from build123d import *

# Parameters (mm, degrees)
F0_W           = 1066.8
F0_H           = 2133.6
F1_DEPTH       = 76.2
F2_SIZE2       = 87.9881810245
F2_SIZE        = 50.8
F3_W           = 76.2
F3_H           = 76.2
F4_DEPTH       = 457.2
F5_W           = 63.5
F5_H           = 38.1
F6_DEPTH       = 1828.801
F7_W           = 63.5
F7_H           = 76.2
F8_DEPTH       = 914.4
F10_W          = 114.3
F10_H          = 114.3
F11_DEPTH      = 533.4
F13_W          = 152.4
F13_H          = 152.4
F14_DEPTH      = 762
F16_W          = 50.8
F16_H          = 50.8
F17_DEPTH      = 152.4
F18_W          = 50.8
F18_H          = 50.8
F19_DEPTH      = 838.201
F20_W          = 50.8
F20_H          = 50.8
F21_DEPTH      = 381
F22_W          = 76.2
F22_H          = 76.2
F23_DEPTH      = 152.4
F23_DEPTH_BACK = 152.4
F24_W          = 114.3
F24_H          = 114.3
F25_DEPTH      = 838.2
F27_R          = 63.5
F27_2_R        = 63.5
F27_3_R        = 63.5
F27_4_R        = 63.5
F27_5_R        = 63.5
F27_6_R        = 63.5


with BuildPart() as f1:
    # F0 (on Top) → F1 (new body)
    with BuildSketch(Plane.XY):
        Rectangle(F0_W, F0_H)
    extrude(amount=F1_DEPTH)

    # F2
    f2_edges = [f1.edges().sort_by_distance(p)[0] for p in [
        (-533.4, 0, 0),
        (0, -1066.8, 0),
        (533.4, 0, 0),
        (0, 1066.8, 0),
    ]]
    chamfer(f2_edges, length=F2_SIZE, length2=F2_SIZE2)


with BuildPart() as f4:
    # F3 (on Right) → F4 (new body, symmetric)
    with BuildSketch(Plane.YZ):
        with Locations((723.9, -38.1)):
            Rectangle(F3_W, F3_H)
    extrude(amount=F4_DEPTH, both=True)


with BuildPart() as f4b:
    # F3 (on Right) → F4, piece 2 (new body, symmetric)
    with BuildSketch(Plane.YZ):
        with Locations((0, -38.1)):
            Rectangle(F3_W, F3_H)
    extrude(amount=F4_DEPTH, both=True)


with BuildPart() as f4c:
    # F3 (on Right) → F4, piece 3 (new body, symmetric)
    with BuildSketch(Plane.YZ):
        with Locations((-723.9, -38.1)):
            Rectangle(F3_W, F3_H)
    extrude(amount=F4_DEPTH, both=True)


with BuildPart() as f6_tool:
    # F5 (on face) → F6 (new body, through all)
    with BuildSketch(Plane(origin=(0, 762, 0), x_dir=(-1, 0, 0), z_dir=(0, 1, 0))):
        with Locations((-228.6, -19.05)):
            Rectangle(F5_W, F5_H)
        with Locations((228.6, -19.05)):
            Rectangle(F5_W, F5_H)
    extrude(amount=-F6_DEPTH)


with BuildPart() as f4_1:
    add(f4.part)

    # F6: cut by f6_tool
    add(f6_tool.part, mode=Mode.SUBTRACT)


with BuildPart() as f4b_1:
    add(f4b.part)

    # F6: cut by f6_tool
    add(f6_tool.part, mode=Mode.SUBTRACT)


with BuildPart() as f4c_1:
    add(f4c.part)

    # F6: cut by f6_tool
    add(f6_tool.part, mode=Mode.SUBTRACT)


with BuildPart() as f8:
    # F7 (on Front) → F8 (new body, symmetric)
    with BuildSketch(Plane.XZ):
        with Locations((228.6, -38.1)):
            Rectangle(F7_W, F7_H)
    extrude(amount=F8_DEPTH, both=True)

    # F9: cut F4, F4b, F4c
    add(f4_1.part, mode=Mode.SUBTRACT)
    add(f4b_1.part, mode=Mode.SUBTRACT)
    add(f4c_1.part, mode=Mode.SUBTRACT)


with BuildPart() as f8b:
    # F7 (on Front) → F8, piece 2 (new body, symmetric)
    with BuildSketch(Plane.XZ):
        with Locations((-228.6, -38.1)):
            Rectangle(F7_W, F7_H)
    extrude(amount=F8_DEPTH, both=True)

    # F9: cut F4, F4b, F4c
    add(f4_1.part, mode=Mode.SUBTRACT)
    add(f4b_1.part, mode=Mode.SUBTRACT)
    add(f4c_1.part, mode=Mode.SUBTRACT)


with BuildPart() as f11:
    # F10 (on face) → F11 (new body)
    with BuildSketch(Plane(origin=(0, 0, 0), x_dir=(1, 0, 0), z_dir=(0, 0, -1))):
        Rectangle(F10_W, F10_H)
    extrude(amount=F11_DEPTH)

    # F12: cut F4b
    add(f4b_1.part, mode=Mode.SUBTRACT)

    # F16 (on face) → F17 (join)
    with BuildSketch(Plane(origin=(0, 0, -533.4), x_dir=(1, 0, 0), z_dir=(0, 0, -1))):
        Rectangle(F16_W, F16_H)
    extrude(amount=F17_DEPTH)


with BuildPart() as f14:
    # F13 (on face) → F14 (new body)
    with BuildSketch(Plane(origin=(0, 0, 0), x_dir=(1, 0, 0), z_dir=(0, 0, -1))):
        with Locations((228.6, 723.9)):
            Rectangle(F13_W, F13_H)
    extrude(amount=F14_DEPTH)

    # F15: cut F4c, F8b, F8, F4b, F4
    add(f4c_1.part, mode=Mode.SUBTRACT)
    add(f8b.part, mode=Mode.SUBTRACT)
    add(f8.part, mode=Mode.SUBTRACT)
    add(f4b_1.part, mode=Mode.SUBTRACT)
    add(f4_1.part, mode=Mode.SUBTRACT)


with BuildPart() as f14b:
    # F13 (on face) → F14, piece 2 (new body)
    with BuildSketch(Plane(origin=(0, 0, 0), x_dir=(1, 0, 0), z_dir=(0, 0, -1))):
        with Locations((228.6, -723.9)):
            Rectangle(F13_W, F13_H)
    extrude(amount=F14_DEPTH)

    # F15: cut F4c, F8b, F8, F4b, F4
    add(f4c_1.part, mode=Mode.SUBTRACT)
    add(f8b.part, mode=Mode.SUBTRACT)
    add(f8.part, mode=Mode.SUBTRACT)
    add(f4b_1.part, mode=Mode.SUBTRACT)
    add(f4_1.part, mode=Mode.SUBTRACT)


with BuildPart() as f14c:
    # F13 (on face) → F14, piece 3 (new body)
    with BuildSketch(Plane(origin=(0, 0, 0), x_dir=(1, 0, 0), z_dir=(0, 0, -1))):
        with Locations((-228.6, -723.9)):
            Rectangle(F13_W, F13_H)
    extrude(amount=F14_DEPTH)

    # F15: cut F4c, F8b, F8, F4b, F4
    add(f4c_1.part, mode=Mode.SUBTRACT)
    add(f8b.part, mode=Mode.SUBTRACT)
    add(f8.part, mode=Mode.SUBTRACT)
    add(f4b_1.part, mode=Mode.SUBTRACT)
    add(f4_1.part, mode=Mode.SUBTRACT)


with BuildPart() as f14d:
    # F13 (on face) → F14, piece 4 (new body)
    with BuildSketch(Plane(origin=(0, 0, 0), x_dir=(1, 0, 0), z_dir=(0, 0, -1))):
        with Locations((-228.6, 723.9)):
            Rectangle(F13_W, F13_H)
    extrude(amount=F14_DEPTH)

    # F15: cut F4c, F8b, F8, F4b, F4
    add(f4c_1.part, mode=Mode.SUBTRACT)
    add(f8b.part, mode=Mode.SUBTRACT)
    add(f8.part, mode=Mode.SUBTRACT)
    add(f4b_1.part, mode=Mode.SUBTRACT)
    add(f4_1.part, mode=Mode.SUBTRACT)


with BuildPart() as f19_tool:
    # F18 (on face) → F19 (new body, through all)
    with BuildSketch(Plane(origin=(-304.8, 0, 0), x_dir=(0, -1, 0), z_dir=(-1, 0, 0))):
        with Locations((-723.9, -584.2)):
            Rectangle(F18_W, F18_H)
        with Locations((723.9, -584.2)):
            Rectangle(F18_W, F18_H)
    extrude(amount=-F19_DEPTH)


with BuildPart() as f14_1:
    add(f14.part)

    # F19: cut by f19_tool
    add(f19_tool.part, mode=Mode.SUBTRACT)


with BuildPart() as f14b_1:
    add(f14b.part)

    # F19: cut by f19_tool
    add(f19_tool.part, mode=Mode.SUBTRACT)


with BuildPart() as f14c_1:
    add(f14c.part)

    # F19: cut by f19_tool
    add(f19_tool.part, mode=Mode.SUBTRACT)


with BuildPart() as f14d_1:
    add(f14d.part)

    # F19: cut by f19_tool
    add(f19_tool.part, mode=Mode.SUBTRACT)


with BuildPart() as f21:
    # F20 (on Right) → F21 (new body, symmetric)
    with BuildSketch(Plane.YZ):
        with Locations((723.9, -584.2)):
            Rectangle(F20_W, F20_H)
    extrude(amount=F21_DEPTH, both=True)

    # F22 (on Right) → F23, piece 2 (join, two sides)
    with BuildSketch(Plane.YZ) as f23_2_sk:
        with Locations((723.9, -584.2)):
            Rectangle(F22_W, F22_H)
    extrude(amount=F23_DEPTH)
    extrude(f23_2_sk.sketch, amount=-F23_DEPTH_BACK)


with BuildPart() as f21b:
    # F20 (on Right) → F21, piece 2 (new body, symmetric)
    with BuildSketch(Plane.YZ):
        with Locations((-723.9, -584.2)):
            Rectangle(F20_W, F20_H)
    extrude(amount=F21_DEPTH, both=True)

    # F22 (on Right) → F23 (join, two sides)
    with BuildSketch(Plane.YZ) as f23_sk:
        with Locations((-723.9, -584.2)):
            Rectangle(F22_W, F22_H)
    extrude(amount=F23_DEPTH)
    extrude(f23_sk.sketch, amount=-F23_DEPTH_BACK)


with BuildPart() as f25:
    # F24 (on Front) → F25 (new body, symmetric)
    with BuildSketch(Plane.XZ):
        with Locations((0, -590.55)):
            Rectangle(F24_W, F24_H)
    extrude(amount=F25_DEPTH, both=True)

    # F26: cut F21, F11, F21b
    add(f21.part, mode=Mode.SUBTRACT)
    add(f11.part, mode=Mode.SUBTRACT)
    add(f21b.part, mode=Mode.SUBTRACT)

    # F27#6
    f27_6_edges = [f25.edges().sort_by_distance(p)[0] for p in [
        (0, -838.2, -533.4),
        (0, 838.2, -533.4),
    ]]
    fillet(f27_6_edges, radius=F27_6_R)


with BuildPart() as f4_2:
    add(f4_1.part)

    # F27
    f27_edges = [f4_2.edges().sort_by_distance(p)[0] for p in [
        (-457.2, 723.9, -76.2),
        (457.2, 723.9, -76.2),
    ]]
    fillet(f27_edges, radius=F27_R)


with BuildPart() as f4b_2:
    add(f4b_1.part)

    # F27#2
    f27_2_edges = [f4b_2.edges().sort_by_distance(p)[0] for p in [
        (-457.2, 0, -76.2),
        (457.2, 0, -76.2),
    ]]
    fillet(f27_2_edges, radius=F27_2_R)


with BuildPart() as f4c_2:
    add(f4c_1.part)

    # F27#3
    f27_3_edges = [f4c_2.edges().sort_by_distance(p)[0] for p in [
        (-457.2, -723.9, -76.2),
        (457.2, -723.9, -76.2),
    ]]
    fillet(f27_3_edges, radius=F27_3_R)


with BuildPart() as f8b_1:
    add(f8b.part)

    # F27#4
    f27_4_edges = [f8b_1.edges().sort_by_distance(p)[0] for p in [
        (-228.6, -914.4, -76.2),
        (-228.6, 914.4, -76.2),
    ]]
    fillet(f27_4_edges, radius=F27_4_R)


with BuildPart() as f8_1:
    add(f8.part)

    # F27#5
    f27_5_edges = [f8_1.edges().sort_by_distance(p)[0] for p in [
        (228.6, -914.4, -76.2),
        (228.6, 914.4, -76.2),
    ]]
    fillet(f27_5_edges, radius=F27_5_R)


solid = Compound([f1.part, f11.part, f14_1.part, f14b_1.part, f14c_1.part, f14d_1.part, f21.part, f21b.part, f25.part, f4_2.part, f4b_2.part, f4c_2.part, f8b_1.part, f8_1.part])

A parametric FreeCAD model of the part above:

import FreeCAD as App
import Part
import Sketcher
Q = App.Units.Quantity


def edges_at(feature, points):
    """Names of the edges that pass closest to the given points."""
    edges = feature.Shape.Edges
    near = lambda p: min(range(len(edges)), key=lambda i: edges[i].distToShape(Part.Vertex(*p))[0])
    return sorted({f"Edge{near(p) + 1}" for p in points})


def add_polygon(sketch, points):
    """Adds a closed chain of lines whose ends are joined by coincident constraints."""
    first, n = sketch.GeometryCount, len(points)
    for a, b in zip(points, points[1:] + points[:1]):
        sketch.addGeometry(Part.LineSegment(App.Vector(*a, 0), App.Vector(*b, 0)), False)
    for i in range(n):
        sketch.addConstraint(Sketcher.Constraint("Coincident", first + i, 2, first + (i + 1) % n, 1))

doc = App.newDocument("Part")
body = doc.addObject("PartDesign::Body", "Body")

# Sketch on XY plane
sketch1 = body.newObject("Sketcher::SketchObject", "Sketch")
sketch1.AttachmentSupport = (doc.getObject("XY_Plane"), [""])
sketch1.MapMode = "FlatFace"
add_polygon(sketch1, [(-533, 1067), (-533, -1067), (533, -1067), (533, 1067)])  # lines 0-3
sketch1.addConstraint([
    Sketcher.Constraint("Vertical", 0),
    Sketcher.Constraint("Horizontal", 1),
    Sketcher.Constraint("Vertical", 2),
    Sketcher.Constraint("Horizontal", 3),
    Sketcher.Constraint("Symmetric", 0, 2, 2, 2, -1, 1),
    Sketcher.Constraint("DistanceX", 1, 1, 1, 2, Q("42 in")),
    Sketcher.Constraint("DistanceY", 0, 2, 0, 1, Q("84 in")),
])
pad1 = body.newObject("PartDesign::Pad", "Pad")
pad1.Profile = sketch1
pad1.Length = Q("3 in")
doc.recompute()

chamfer = body.newObject("PartDesign::Chamfer", "Chamfer")
chamfer.Base = (pad1, edges_at(pad1, [
    (-533.4, 0, 0),
    (0, -1066.8, 0),
    (533.4, 0, 0),
    (0, 1066.8, 0),
]))
chamfer.ChamferType = "Two distances"
chamfer.Size = Q("2 in")
chamfer.Size2 = 87.988181
body2 = doc.addObject("PartDesign::Body", "Body001")

# Sketch on YZ plane
sketch2 = body2.newObject("Sketcher::SketchObject", "Sketch001")
sketch2.AttachmentSupport = (doc.getObject("YZ_Plane001"), [""])
sketch2.MapMode = "FlatFace"
add_polygon(sketch2, [(686, 0), (686, -76), (762, -76), (762, 0)])  # lines 0-3
sketch2.addConstraint([
    Sketcher.Constraint("Vertical", 0),
    Sketcher.Constraint("Horizontal", 1),
    Sketcher.Constraint("Vertical", 2),
    Sketcher.Constraint("Horizontal", 3),
    Sketcher.Constraint("PointOnObject", 2, 2, -1),
    Sketcher.Constraint("Equal", 3, 0),
    Sketcher.Constraint("DistanceX", 1, 1, 1, 2, Q("3 in")),
    Sketcher.Constraint("DistanceX", -1, 1, 0, 2, Q("27 in")),
])
pad2 = body2.newObject("PartDesign::Pad", "Pad001")
pad2.Profile = sketch2
pad2.Length = Q("36 in")
pad2.Midplane = True
body3 = doc.addObject("PartDesign::Body", "Body002")

# Sketch on YZ plane
sketch3 = body3.newObject("Sketcher::SketchObject", "Sketch002")
sketch3.AttachmentSupport = (doc.getObject("YZ_Plane002"), [""])
sketch3.MapMode = "FlatFace"
add_polygon(sketch3, [(-38, 0), (-38, -76), (38, -76), (38, 0)])  # lines 0-3
sketch3.addConstraint([
    Sketcher.Constraint("Vertical", 0),
    Sketcher.Constraint("Horizontal", 1),
    Sketcher.Constraint("Vertical", 2),
    Sketcher.Constraint("Horizontal", 3),
    Sketcher.Constraint("Symmetric", 2, 2, 3, 2, -1, 1),
    Sketcher.Constraint("Equal", 3, 0),
    Sketcher.Constraint("DistanceX", 1, 1, 1, 2, Q("3 in")),
])
pad3 = body3.newObject("PartDesign::Pad", "Pad002")
pad3.Profile = sketch3
pad3.Length = Q("36 in")
pad3.Midplane = True
body4 = doc.addObject("PartDesign::Body", "Body003")

# Sketch on YZ plane
sketch4 = body4.newObject("Sketcher::SketchObject", "Sketch003")
sketch4.AttachmentSupport = (doc.getObject("YZ_Plane003"), [""])
sketch4.MapMode = "FlatFace"
add_polygon(sketch4, [(-762, 0), (-762, -76), (-686, -76), (-686, 0)])  # lines 0-3
sketch4.addConstraint([
    Sketcher.Constraint("Vertical", 0),
    Sketcher.Constraint("Horizontal", 1),
    Sketcher.Constraint("Vertical", 2),
    Sketcher.Constraint("Horizontal", 3),
    Sketcher.Constraint("PointOnObject", 2, 2, -1),
    Sketcher.Constraint("Equal", 3, 0),
    Sketcher.Constraint("DistanceX", 1, 1, 1, 2, Q("3 in")),
    Sketcher.Constraint("DistanceX", 0, 2, -1, 1, Q("30 in")),
])
pad4 = body4.newObject("PartDesign::Pad", "Pad003")
pad4.Profile = sketch4
pad4.Length = Q("36 in")
pad4.Midplane = True
body5 = doc.addObject("PartDesign::Body", "Body004")
body5.AllowCompound = True

# Sketch on XZ plane
sketch5 = body5.newObject("Sketcher::SketchObject", "Sketch004")
sketch5.AttachmentSupport = (doc.getObject("XZ_Plane004"), [""])
sketch5.MapMode = "FlatFace"
sketch5.AttachmentOffset = App.Placement(App.Vector(0, 0, -30 * 25.4), App.Rotation())
add_polygon(sketch5, [(260, 0), (260, -38), (197, -38), (197, 0)])  # lines 0-3
add_polygon(sketch5, [(-197, 0), (-197, -38), (-260, -38), (-260, 0)])  # lines 4-7
sketch5.addConstraint([
    Sketcher.Constraint("Vertical", 0),
    Sketcher.Constraint("Horizontal", 1),
    Sketcher.Constraint("Vertical", 2),
    Sketcher.Constraint("Horizontal", 3),
    Sketcher.Constraint("Vertical", 4),
    Sketcher.Constraint("Horizontal", 5),
    Sketcher.Constraint("Vertical", 6),
    Sketcher.Constraint("Horizontal", 7),
    Sketcher.Constraint("Symmetric", 3, 2, 6, 2, -1, 1),
    Sketcher.Constraint("Symmetric", 1, 2, 4, 2, -2),
    Sketcher.Constraint("PointOnObject", 2, 2, -1),
    Sketcher.Constraint("DistanceX", 1, 2, 1, 1, Q("2.5 in")),
    Sketcher.Constraint("DistanceY", 0, 2, 0, 1, Q("1.5 in")),
    Sketcher.Constraint("DistanceX", 4, 2, 0, 2, Q("18 in")),
])
pad5 = body5.newObject("PartDesign::Pad", "Pad004")
pad5.Profile = sketch5
pad5.Length = 1828.801
doc.recompute()

body6 = doc.addObject("PartDesign::Body", "Body005")
body6.BaseFeature = body5
boolean = body2.newObject("PartDesign::Boolean", "Boolean")
boolean.Type = "Cut"
boolean.addObjects([body6])
doc.recompute()

body7 = doc.addObject("PartDesign::Body", "Body006")
body7.BaseFeature = body5
boolean2 = body3.newObject("PartDesign::Boolean", "Boolean001")
boolean2.Type = "Cut"
boolean2.addObjects([body7])
doc.recompute()

boolean3 = body4.newObject("PartDesign::Boolean", "Boolean002")
boolean3.Type = "Cut"
boolean3.addObjects([body5])
body8 = doc.addObject("PartDesign::Body", "Body007")

# Sketch on XZ plane
sketch6 = body8.newObject("Sketcher::SketchObject", "Sketch005")
sketch6.AttachmentSupport = (doc.getObject("XZ_Plane007"), [""])
sketch6.MapMode = "FlatFace"
add_polygon(sketch6, [(197, 0), (197, -76), (260, -76), (260, 0)])  # lines 0-3
sketch6.addConstraint([
    Sketcher.Constraint("Vertical", 0),
    Sketcher.Constraint("Horizontal", 1),
    Sketcher.Constraint("Vertical", 2),
    Sketcher.Constraint("Horizontal", 3),
    Sketcher.Constraint("PointOnObject", 2, 2, -1),
    Sketcher.Constraint("DistanceY", 0, 2, 0, 1, Q("3 in")),
    Sketcher.Constraint("DistanceX", 1, 1, 1, 2, Q("2.5 in")),
    Sketcher.Constraint("DistanceX", -1, 1, 0, 2, Q("7.75 in")),
])
pad6 = body8.newObject("PartDesign::Pad", "Pad005")
pad6.Profile = sketch6
pad6.Length = Q("72 in")
pad6.Midplane = True
doc.recompute()

body9 = doc.addObject("PartDesign::Body", "Body008")
body9.BaseFeature = body2
boolean4 = body8.newObject("PartDesign::Boolean", "Boolean003")
boolean4.Type = "Cut"
boolean4.addObjects([body9])
doc.recompute()

body10 = doc.addObject("PartDesign::Body", "Body009")
body10.BaseFeature = body3
boolean5 = body8.newObject("PartDesign::Boolean", "Boolean004")
boolean5.Type = "Cut"
boolean5.addObjects([body10])
doc.recompute()

body11 = doc.addObject("PartDesign::Body", "Body010")
body11.BaseFeature = body4
boolean6 = body8.newObject("PartDesign::Boolean", "Boolean005")
boolean6.Type = "Cut"
boolean6.addObjects([body11])
doc.recompute()
body12 = doc.addObject("PartDesign::Body", "Body011")

# Sketch on XZ plane
sketch7 = body12.newObject("Sketcher::SketchObject", "Sketch006")
sketch7.AttachmentSupport = (doc.getObject("XZ_Plane011"), [""])
sketch7.MapMode = "FlatFace"
add_polygon(sketch7, [(-260, 0), (-260, -76), (-197, -76), (-197, 0)])  # lines 0-3
sketch7.addConstraint([
    Sketcher.Constraint("Vertical", 0),
    Sketcher.Constraint("Horizontal", 1),
    Sketcher.Constraint("Vertical", 2),
    Sketcher.Constraint("Horizontal", 3),
    Sketcher.Constraint("PointOnObject", 2, 2, -1),
    Sketcher.Constraint("DistanceY", 0, 2, 0, 1, Q("3 in")),
    Sketcher.Constraint("DistanceX", 1, 1, 1, 2, Q("2.5 in")),
    Sketcher.Constraint("DistanceX", 0, 2, -1, 1, Q("10.25 in")),
])
pad7 = body12.newObject("PartDesign::Pad", "Pad006")
pad7.Profile = sketch7
pad7.Length = Q("72 in")
pad7.Midplane = True
doc.recompute()

body13 = doc.addObject("PartDesign::Body", "Body012")
body13.BaseFeature = body2
boolean7 = body12.newObject("PartDesign::Boolean", "Boolean006")
boolean7.Type = "Cut"
boolean7.addObjects([body13])
doc.recompute()

body14 = doc.addObject("PartDesign::Body", "Body013")
body14.BaseFeature = body3
boolean8 = body12.newObject("PartDesign::Boolean", "Boolean007")
boolean8.Type = "Cut"
boolean8.addObjects([body14])
doc.recompute()

body15 = doc.addObject("PartDesign::Body", "Body014")
body15.BaseFeature = body4
boolean9 = body12.newObject("PartDesign::Boolean", "Boolean008")
boolean9.Type = "Cut"
boolean9.addObjects([body15])
doc.recompute()
body16 = doc.addObject("PartDesign::Body", "Body015")

# Sketch on XY plane
sketch8 = body16.newObject("Sketcher::SketchObject", "Sketch007")
sketch8.AttachmentSupport = (doc.getObject("XY_Plane015"), [""])
sketch8.MapMode = "FlatFace"
add_polygon(sketch8, [(-57, -57), (-57, 57), (57, 57), (57, -57)])  # lines 0-3
sketch8.addConstraint([
    Sketcher.Constraint("Vertical", 0),
    Sketcher.Constraint("Horizontal", 1),
    Sketcher.Constraint("Vertical", 2),
    Sketcher.Constraint("Horizontal", 3),
    Sketcher.Constraint("Symmetric", 0, 2, 2, 2, -1, 1),
    Sketcher.Constraint("Equal", 3, 0),
    Sketcher.Constraint("DistanceX", 1, 1, 1, 2, Q("4.5 in")),
])
pad8 = body16.newObject("PartDesign::Pad", "Pad007")
pad8.Profile = sketch8
pad8.Length = Q("21 in")
pad8.Reversed = True
doc.recompute()

body17 = doc.addObject("PartDesign::Body", "Body016")
body17.BaseFeature = body3
boolean10 = body16.newObject("PartDesign::Boolean", "Boolean009")
boolean10.Type = "Cut"
boolean10.addObjects([body17])
doc.recompute()

# Sketch on XY plane
sketch9 = body16.newObject("Sketcher::SketchObject", "Sketch008")
sketch9.AttachmentSupport = (doc.getObject("XY_Plane015"), [""])
sketch9.MapMode = "FlatFace"
sketch9.AttachmentOffset = App.Placement(App.Vector(0, 0, -21 * 25.4), App.Rotation())
add_polygon(sketch9, [(-25, -25), (-25, 25), (25, 25), (25, -25)])  # lines 0-3
sketch9.addConstraint([
    Sketcher.Constraint("Vertical", 0),
    Sketcher.Constraint("Horizontal", 1),
    Sketcher.Constraint("Vertical", 2),
    Sketcher.Constraint("Horizontal", 3),
    Sketcher.Constraint("Symmetric", 0, 2, 2, 2, -1, 1),
    Sketcher.Constraint("Equal", 3, 0),
    Sketcher.Constraint("DistanceX", 1, 1, 1, 2, Q("2 in")),
])
pad9 = body16.newObject("PartDesign::Pad", "Pad008")
pad9.Profile = sketch9
pad9.Length = Q("6 in")
pad9.Reversed = True
body18 = doc.addObject("PartDesign::Body", "Body017")

# Sketch on XY plane
sketch10 = body18.newObject("Sketcher::SketchObject", "Sketch009")
sketch10.AttachmentSupport = (doc.getObject("XY_Plane017"), [""])
sketch10.MapMode = "FlatFace"
add_polygon(sketch10, [(152, -800), (152, -648), (305, -648), (305, -800)])  # lines 0-3
sketch10.addConstraint([
    Sketcher.Constraint("Vertical", 0),
    Sketcher.Constraint("Horizontal", 1),
    Sketcher.Constraint("Vertical", 2),
    Sketcher.Constraint("Horizontal", 3),
    Sketcher.Constraint("Equal", 3, 0),
    Sketcher.Constraint("DistanceX", 1, 1, 1, 2, Q("6 in")),
    Sketcher.Constraint("DistanceX", -1, 1, 0, 2, Q("6 in")),
    Sketcher.Constraint("DistanceY", 0, 2, -1, 1, Q("25.5 in")),
])
pad10 = body18.newObject("PartDesign::Pad", "Pad009")
pad10.Profile = sketch10
pad10.Length = Q("30 in")
pad10.Reversed = True
doc.recompute()

body19 = doc.addObject("PartDesign::Body", "Body018")
body19.BaseFeature = body4
boolean11 = body18.newObject("PartDesign::Boolean", "Boolean010")
boolean11.Type = "Cut"
boolean11.addObjects([body19])
doc.recompute()

body20 = doc.addObject("PartDesign::Body", "Body019")
body20.BaseFeature = body12
boolean12 = body18.newObject("PartDesign::Boolean", "Boolean011")
boolean12.Type = "Cut"
boolean12.addObjects([body20])
doc.recompute()

body21 = doc.addObject("PartDesign::Body", "Body020")
body21.BaseFeature = body8
boolean13 = body18.newObject("PartDesign::Boolean", "Boolean012")
boolean13.Type = "Cut"
boolean13.addObjects([body21])
doc.recompute()

body22 = doc.addObject("PartDesign::Body", "Body021")
body22.BaseFeature = body3
boolean14 = body18.newObject("PartDesign::Boolean", "Boolean013")
boolean14.Type = "Cut"
boolean14.addObjects([body22])
doc.recompute()

body23 = doc.addObject("PartDesign::Body", "Body022")
body23.BaseFeature = body2
boolean15 = body18.newObject("PartDesign::Boolean", "Boolean014")
boolean15.Type = "Cut"
boolean15.addObjects([body23])
doc.recompute()
body24 = doc.addObject("PartDesign::Body", "Body023")

# Sketch on XY plane
sketch11 = body24.newObject("Sketcher::SketchObject", "Sketch010")
sketch11.AttachmentSupport = (doc.getObject("XY_Plane023"), [""])
sketch11.MapMode = "FlatFace"
add_polygon(sketch11, [(152, 648), (152, 800), (305, 800), (305, 648)])  # lines 0-3
sketch11.addConstraint([
    Sketcher.Constraint("Vertical", 0),
    Sketcher.Constraint("Horizontal", 1),
    Sketcher.Constraint("Vertical", 2),
    Sketcher.Constraint("Horizontal", 3),
    Sketcher.Constraint("Equal", 3, 0),
    Sketcher.Constraint("DistanceX", 1, 1, 1, 2, Q("6 in")),
    Sketcher.Constraint("DistanceX", -1, 1, 0, 2, Q("6 in")),
    Sketcher.Constraint("DistanceY", -1, 1, 0, 2, Q("31.5 in")),
])
pad11 = body24.newObject("PartDesign::Pad", "Pad010")
pad11.Profile = sketch11
pad11.Length = Q("30 in")
pad11.Reversed = True
doc.recompute()

body25 = doc.addObject("PartDesign::Body", "Body024")
body25.BaseFeature = body4
boolean16 = body24.newObject("PartDesign::Boolean", "Boolean015")
boolean16.Type = "Cut"
boolean16.addObjects([body25])
doc.recompute()

body26 = doc.addObject("PartDesign::Body", "Body025")
body26.BaseFeature = body12
boolean17 = body24.newObject("PartDesign::Boolean", "Boolean016")
boolean17.Type = "Cut"
boolean17.addObjects([body26])
doc.recompute()

body27 = doc.addObject("PartDesign::Body", "Body026")
body27.BaseFeature = body8
boolean18 = body24.newObject("PartDesign::Boolean", "Boolean017")
boolean18.Type = "Cut"
boolean18.addObjects([body27])
doc.recompute()

body28 = doc.addObject("PartDesign::Body", "Body027")
body28.BaseFeature = body3
boolean19 = body24.newObject("PartDesign::Boolean", "Boolean018")
boolean19.Type = "Cut"
boolean19.addObjects([body28])
doc.recompute()

body29 = doc.addObject("PartDesign::Body", "Body028")
body29.BaseFeature = body2
boolean20 = body24.newObject("PartDesign::Boolean", "Boolean019")
boolean20.Type = "Cut"
boolean20.addObjects([body29])
doc.recompute()
body30 = doc.addObject("PartDesign::Body", "Body029")

# Sketch on XY plane
sketch12 = body30.newObject("Sketcher::SketchObject", "Sketch011")
sketch12.AttachmentSupport = (doc.getObject("XY_Plane029"), [""])
sketch12.MapMode = "FlatFace"
add_polygon(sketch12, [(-305, 648), (-305, 800), (-152, 800), (-152, 648)])  # lines 0-3
sketch12.addConstraint([
    Sketcher.Constraint("Vertical", 0),
    Sketcher.Constraint("Horizontal", 1),
    Sketcher.Constraint("Vertical", 2),
    Sketcher.Constraint("Horizontal", 3),
    Sketcher.Constraint("Equal", 3, 0),
    Sketcher.Constraint("DistanceX", 1, 1, 1, 2, Q("6 in")),
    Sketcher.Constraint("DistanceX", 0, 2, -1, 1, Q("12 in")),
    Sketcher.Constraint("DistanceY", -1, 1, 0, 2, Q("31.5 in")),
])
pad12 = body30.newObject("PartDesign::Pad", "Pad011")
pad12.Profile = sketch12
pad12.Length = Q("30 in")
pad12.Reversed = True
doc.recompute()

body31 = doc.addObject("PartDesign::Body", "Body030")
body31.BaseFeature = body4
boolean21 = body30.newObject("PartDesign::Boolean", "Boolean020")
boolean21.Type = "Cut"
boolean21.addObjects([body31])
doc.recompute()

body32 = doc.addObject("PartDesign::Body", "Body031")
body32.BaseFeature = body12
boolean22 = body30.newObject("PartDesign::Boolean", "Boolean021")
boolean22.Type = "Cut"
boolean22.addObjects([body32])
doc.recompute()

body33 = doc.addObject("PartDesign::Body", "Body032")
body33.BaseFeature = body8
boolean23 = body30.newObject("PartDesign::Boolean", "Boolean022")
boolean23.Type = "Cut"
boolean23.addObjects([body33])
doc.recompute()

body34 = doc.addObject("PartDesign::Body", "Body033")
body34.BaseFeature = body3
boolean24 = body30.newObject("PartDesign::Boolean", "Boolean023")
boolean24.Type = "Cut"
boolean24.addObjects([body34])
doc.recompute()

body35 = doc.addObject("PartDesign::Body", "Body034")
body35.BaseFeature = body2
boolean25 = body30.newObject("PartDesign::Boolean", "Boolean024")
boolean25.Type = "Cut"
boolean25.addObjects([body35])
doc.recompute()
body36 = doc.addObject("PartDesign::Body", "Body035")

# Sketch on XY plane
sketch13 = body36.newObject("Sketcher::SketchObject", "Sketch012")
sketch13.AttachmentSupport = (doc.getObject("XY_Plane035"), [""])
sketch13.MapMode = "FlatFace"
add_polygon(sketch13, [(-305, -800), (-305, -648), (-152, -648), (-152, -800)])  # lines 0-3
sketch13.addConstraint([
    Sketcher.Constraint("Vertical", 0),
    Sketcher.Constraint("Horizontal", 1),
    Sketcher.Constraint("Vertical", 2),
    Sketcher.Constraint("Horizontal", 3),
    Sketcher.Constraint("Equal", 3, 0),
    Sketcher.Constraint("DistanceX", 1, 1, 1, 2, Q("6 in")),
    Sketcher.Constraint("DistanceX", 0, 2, -1, 1, Q("12 in")),
    Sketcher.Constraint("DistanceY", 0, 2, -1, 1, Q("25.5 in")),
])
pad13 = body36.newObject("PartDesign::Pad", "Pad012")
pad13.Profile = sketch13
pad13.Length = Q("30 in")
pad13.Reversed = True
doc.recompute()

body37 = doc.addObject("PartDesign::Body", "Body036")
body37.BaseFeature = body4
boolean26 = body36.newObject("PartDesign::Boolean", "Boolean025")
boolean26.Type = "Cut"
boolean26.addObjects([body37])
doc.recompute()

body38 = doc.addObject("PartDesign::Body", "Body037")
body38.BaseFeature = body12
boolean27 = body36.newObject("PartDesign::Boolean", "Boolean026")
boolean27.Type = "Cut"
boolean27.addObjects([body38])
doc.recompute()

body39 = doc.addObject("PartDesign::Body", "Body038")
body39.BaseFeature = body8
boolean28 = body36.newObject("PartDesign::Boolean", "Boolean027")
boolean28.Type = "Cut"
boolean28.addObjects([body39])
doc.recompute()

body40 = doc.addObject("PartDesign::Body", "Body039")
body40.BaseFeature = body3
boolean29 = body36.newObject("PartDesign::Boolean", "Boolean028")
boolean29.Type = "Cut"
boolean29.addObjects([body40])
doc.recompute()

body41 = doc.addObject("PartDesign::Body", "Body040")
body41.BaseFeature = body2
boolean30 = body36.newObject("PartDesign::Boolean", "Boolean029")
boolean30.Type = "Cut"
boolean30.addObjects([body41])
doc.recompute()
body42 = doc.addObject("PartDesign::Body", "Body041")
body42.AllowCompound = True

# Sketch on YZ plane
sketch14 = body42.newObject("Sketcher::SketchObject", "Sketch013")
sketch14.AttachmentSupport = (doc.getObject("YZ_Plane041"), [""])
sketch14.MapMode = "FlatFace"
sketch14.AttachmentOffset = App.Placement(App.Vector(0, 0, -12 * 25.4), App.Rotation())
add_polygon(sketch14, [(749, -559), (749, -610), (698, -610), (698, -559)])  # lines 0-3
add_polygon(sketch14, [(-698, -559), (-698, -610), (-749, -610), (-749, -559)])  # lines 4-7
sketch14.addConstraint([
    Sketcher.Constraint("Vertical", 0),
    Sketcher.Constraint("Horizontal", 1),
    Sketcher.Constraint("Vertical", 2),
    Sketcher.Constraint("Horizontal", 3),
    Sketcher.Constraint("Vertical", 4),
    Sketcher.Constraint("Horizontal", 5),
    Sketcher.Constraint("Vertical", 6),
    Sketcher.Constraint("Horizontal", 7),
    Sketcher.Constraint("Symmetric", 1, 2, 4, 2, -2),
    Sketcher.Constraint("Symmetric", 3, 2, 6, 2, -2),
    Sketcher.Constraint("Equal", 7, 0),
    Sketcher.Constraint("DistanceX", 1, 2, 1, 1, Q("2 in")),
    Sketcher.Constraint("DistanceY", 0, 2, -1, 1, Q("24 in")),
    Sketcher.Constraint("DistanceX", 4, 2, 1, 2, Q("55 in")),
])
pad14 = body42.newObject("PartDesign::Pad", "Pad013")
pad14.Profile = sketch14
pad14.Length = 838.201
doc.recompute()

body43 = doc.addObject("PartDesign::Body", "Body042")
body43.BaseFeature = body42
boolean31 = body18.newObject("PartDesign::Boolean", "Boolean030")
boolean31.Type = "Cut"
boolean31.addObjects([body43])
doc.recompute()

body44 = doc.addObject("PartDesign::Body", "Body043")
body44.BaseFeature = body42
boolean32 = body24.newObject("PartDesign::Boolean", "Boolean031")
boolean32.Type = "Cut"
boolean32.addObjects([body44])
doc.recompute()

body45 = doc.addObject("PartDesign::Body", "Body044")
body45.BaseFeature = body42
boolean33 = body30.newObject("PartDesign::Boolean", "Boolean032")
boolean33.Type = "Cut"
boolean33.addObjects([body45])
doc.recompute()

boolean34 = body36.newObject("PartDesign::Boolean", "Boolean033")
boolean34.Type = "Cut"
boolean34.addObjects([body42])
body46 = doc.addObject("PartDesign::Body", "Body045")

# Sketch on YZ plane
sketch15 = body46.newObject("Sketcher::SketchObject", "Sketch014")
sketch15.AttachmentSupport = (doc.getObject("YZ_Plane045"), [""])
sketch15.MapMode = "FlatFace"
add_polygon(sketch15, [(698, -559), (698, -610), (749, -610), (749, -559)])  # lines 0-3
sketch15.addConstraint([
    Sketcher.Constraint("Vertical", 0),
    Sketcher.Constraint("Horizontal", 1),
    Sketcher.Constraint("Vertical", 2),
    Sketcher.Constraint("Horizontal", 3),
    Sketcher.Constraint("Equal", 3, 0),
    Sketcher.Constraint("DistanceX", 1, 1, 1, 2, Q("2 in")),
    Sketcher.Constraint("DistanceY", 0, 2, -1, 1, Q("24 in")),
    Sketcher.Constraint("DistanceX", -1, 1, 0, 2, Q("27.5 in")),
])
pad15 = body46.newObject("PartDesign::Pad", "Pad014")
pad15.Profile = sketch15
pad15.Length = Q("30 in")
pad15.Midplane = True

# Sketch on YZ plane
sketch16 = body46.newObject("Sketcher::SketchObject", "Sketch015")
sketch16.AttachmentSupport = (doc.getObject("YZ_Plane045"), [""])
sketch16.MapMode = "FlatFace"
add_polygon(sketch16, [(686, -546), (686, -622), (762, -622), (762, -546)])  # lines 0-3
sketch16.addConstraint([
    Sketcher.Constraint("Vertical", 0),
    Sketcher.Constraint("Horizontal", 1),
    Sketcher.Constraint("Vertical", 2),
    Sketcher.Constraint("Horizontal", 3),
    Sketcher.Constraint("Equal", 3, 0),
    Sketcher.Constraint("DistanceX", 1, 1, 1, 2, Q("3 in")),
    Sketcher.Constraint("DistanceX", -1, 1, 0, 2, Q("27 in")),
    Sketcher.Constraint("DistanceY", 0, 2, -1, 1, Q("24.5 in")),
])
pad16 = body46.newObject("PartDesign::Pad", "Pad015")
pad16.Profile = sketch16
pad16.Type = "TwoLengths"
pad16.Length = Q("6 in")
pad16.Length2 = Q("6 in")
body47 = doc.addObject("PartDesign::Body", "Body046")

# Sketch on YZ plane
sketch17 = body47.newObject("Sketcher::SketchObject", "Sketch016")
sketch17.AttachmentSupport = (doc.getObject("YZ_Plane046"), [""])
sketch17.MapMode = "FlatFace"
add_polygon(sketch17, [(-749, -559), (-749, -610), (-698, -610), (-698, -559)])  # lines 0-3
sketch17.addConstraint([
    Sketcher.Constraint("Vertical", 0),
    Sketcher.Constraint("Horizontal", 1),
    Sketcher.Constraint("Vertical", 2),
    Sketcher.Constraint("Horizontal", 3),
    Sketcher.Constraint("Equal", 3, 0),
    Sketcher.Constraint("DistanceX", 1, 1, 1, 2, Q("2 in")),
    Sketcher.Constraint("DistanceY", 0, 2, -1, 1, Q("24 in")),
    Sketcher.Constraint("DistanceX", 0, 2, -1, 1, Q("29.5 in")),
])
pad17 = body47.newObject("PartDesign::Pad", "Pad016")
pad17.Profile = sketch17
pad17.Length = Q("30 in")
pad17.Midplane = True

# Sketch on YZ plane
sketch18 = body47.newObject("Sketcher::SketchObject", "Sketch017")
sketch18.AttachmentSupport = (doc.getObject("YZ_Plane046"), [""])
sketch18.MapMode = "FlatFace"
add_polygon(sketch18, [(-762, -546), (-762, -622), (-686, -622), (-686, -546)])  # lines 0-3
sketch18.addConstraint([
    Sketcher.Constraint("Vertical", 0),
    Sketcher.Constraint("Horizontal", 1),
    Sketcher.Constraint("Vertical", 2),
    Sketcher.Constraint("Horizontal", 3),
    Sketcher.Constraint("Equal", 3, 0),
    Sketcher.Constraint("DistanceX", 1, 1, 1, 2, Q("3 in")),
    Sketcher.Constraint("DistanceX", 0, 2, -1, 1, Q("30 in")),
    Sketcher.Constraint("DistanceY", 0, 2, -1, 1, Q("24.5 in")),
])
pad18 = body47.newObject("PartDesign::Pad", "Pad017")
pad18.Profile = sketch18
pad18.Type = "TwoLengths"
pad18.Length = Q("6 in")
pad18.Length2 = Q("6 in")
body48 = doc.addObject("PartDesign::Body", "Body047")

# Sketch on XZ plane
sketch19 = body48.newObject("Sketcher::SketchObject", "Sketch018")
sketch19.AttachmentSupport = (doc.getObject("XZ_Plane047"), [""])
sketch19.MapMode = "FlatFace"
add_polygon(sketch19, [(-57, -533), (-57, -648), (57, -648), (57, -533)])  # lines 0-3
sketch19.addConstraint([
    Sketcher.Constraint("Vertical", 0),
    Sketcher.Constraint("Horizontal", 1),
    Sketcher.Constraint("Vertical", 2),
    Sketcher.Constraint("Horizontal", 3),
    Sketcher.Constraint("Equal", 3, 0),
    Sketcher.Constraint("DistanceX", 1, 1, 1, 2, Q("4.5 in")),
    Sketcher.Constraint("DistanceY", 2, 2, -1, 1, Q("21 in")),
    Sketcher.Constraint("DistanceX", 0, 2, -1, 1, Q("2.25 in")),
])
pad19 = body48.newObject("PartDesign::Pad", "Pad018")
pad19.Profile = sketch19
pad19.Length = Q("66 in")
pad19.Midplane = True
doc.recompute()

body49 = doc.addObject("PartDesign::Body", "Body048")
body49.BaseFeature = body46
boolean35 = body48.newObject("PartDesign::Boolean", "Boolean034")
boolean35.Type = "Cut"
boolean35.addObjects([body49])
doc.recompute()

body50 = doc.addObject("PartDesign::Body", "Body049")
body50.BaseFeature = body16
boolean36 = body48.newObject("PartDesign::Boolean", "Boolean035")
boolean36.Type = "Cut"
boolean36.addObjects([body50])
doc.recompute()

body51 = doc.addObject("PartDesign::Body", "Body050")
body51.BaseFeature = body47
boolean37 = body48.newObject("PartDesign::Boolean", "Boolean036")
boolean37.Type = "Cut"
boolean37.addObjects([body51])
doc.recompute()

fillet = body48.newObject("PartDesign::Fillet", "Fillet")
fillet.Base = (boolean37, edges_at(boolean37, [(0, -838.2, -533.4), (0, 838.2, -533.4)]))
fillet.Radius = Q("2.5 in")
doc.recompute()

fillet2 = body2.newObject("PartDesign::Fillet", "Fillet001")
fillet2.Base = (boolean, edges_at(boolean, [(-457.2, 723.9, -76.2), (457.2, 723.9, -76.2)]))
fillet2.Radius = Q("2.5 in")
doc.recompute()

fillet3 = body3.newObject("PartDesign::Fillet", "Fillet002")
fillet3.Base = (boolean2, edges_at(boolean2, [(-457.2, 0, -76.2), (457.2, 0, -76.2)]))
fillet3.Radius = Q("2.5 in")
doc.recompute()

fillet4 = body4.newObject("PartDesign::Fillet", "Fillet003")
fillet4.Base = (boolean3, edges_at(boolean3, [(-457.2, -723.9, -76.2), (457.2, -723.9, -76.2)]))
fillet4.Radius = Q("2.5 in")
doc.recompute()

fillet5 = body12.newObject("PartDesign::Fillet", "Fillet004")
fillet5.Base = (boolean9, edges_at(boolean9, [(-228.6, -914.4, -76.2), (-228.6, 914.4, -76.2)]))
fillet5.Radius = Q("2.5 in")
doc.recompute()

fillet6 = body8.newObject("PartDesign::Fillet", "Fillet005")
fillet6.Base = (boolean6, edges_at(boolean6, [(228.6, -914.4, -76.2), (228.6, 914.4, -76.2)]))
fillet6.Radius = Q("2.5 in")

doc.recompute()
